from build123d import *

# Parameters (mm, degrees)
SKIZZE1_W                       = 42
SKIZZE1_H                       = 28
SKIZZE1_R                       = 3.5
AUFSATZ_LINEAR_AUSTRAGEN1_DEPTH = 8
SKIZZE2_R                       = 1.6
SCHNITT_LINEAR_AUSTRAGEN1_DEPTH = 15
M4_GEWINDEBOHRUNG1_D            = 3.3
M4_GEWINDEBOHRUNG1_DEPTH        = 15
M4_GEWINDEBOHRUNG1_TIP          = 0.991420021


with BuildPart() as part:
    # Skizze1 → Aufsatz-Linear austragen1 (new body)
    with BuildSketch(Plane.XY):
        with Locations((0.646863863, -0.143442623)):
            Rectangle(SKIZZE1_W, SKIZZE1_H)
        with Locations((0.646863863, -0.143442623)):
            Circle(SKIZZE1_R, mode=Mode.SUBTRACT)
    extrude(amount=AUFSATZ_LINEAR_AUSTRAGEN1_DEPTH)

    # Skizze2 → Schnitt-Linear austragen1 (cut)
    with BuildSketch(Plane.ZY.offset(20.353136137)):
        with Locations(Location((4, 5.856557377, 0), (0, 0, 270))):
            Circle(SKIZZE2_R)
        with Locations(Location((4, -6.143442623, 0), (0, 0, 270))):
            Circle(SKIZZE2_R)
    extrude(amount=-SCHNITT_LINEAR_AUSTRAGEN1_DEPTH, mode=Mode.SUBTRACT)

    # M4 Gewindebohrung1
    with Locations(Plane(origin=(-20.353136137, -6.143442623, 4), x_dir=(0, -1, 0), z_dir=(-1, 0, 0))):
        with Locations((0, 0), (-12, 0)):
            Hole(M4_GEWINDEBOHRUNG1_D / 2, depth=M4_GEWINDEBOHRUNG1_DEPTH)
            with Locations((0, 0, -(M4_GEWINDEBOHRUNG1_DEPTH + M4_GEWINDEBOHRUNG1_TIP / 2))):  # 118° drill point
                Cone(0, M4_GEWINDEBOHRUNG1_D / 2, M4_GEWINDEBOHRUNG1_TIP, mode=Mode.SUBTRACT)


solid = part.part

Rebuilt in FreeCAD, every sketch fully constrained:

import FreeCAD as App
import Part
import Sketcher


def add_polygon(sketch, points):
    """Adds a closed chain of lines whose ends are joined by coincident constraints."""
    first, n = sketch.GeometryCount, len(points)
    for a, b in zip(points, points[1:] + points[:1]):
        sketch.addGeometry(Part.LineSegment(App.Vector(*a, 0), App.Vector(*b, 0)), False)
    for i in range(n):
        sketch.addConstraint(Sketcher.Constraint("Coincident", first + i, 2, first + (i + 1) % n, 1))

doc = App.newDocument("Part")
body = doc.addObject("PartDesign::Body", "Body")

# Sketch on XY plane
sketch1 = body.newObject("Sketcher::SketchObject", "Sketch")
sketch1.AttachmentSupport = (doc.getObject("XY_Plane"), [""])
sketch1.MapMode = "FlatFace"
add_polygon(sketch1, [(-20.4, 13.9), (-20.4, -14.1), (21.6, -14.1), (21.6, 13.9)])  # lines 0-3
sketch1.addGeometry(Part.Circle(App.Vector(0.6, -0.1, 0), App.Vector(0, 0, 1), 3.5), False)  # 4
sketch1.addConstraint([
    Sketcher.Constraint("Vertical", 0),
    Sketcher.Constraint("Horizontal", 1),
    Sketcher.Constraint("Vertical", 2),
    Sketcher.Constraint("Horizontal", 3),
    Sketcher.Constraint("Diameter", 4, 7.0),
    Sketcher.Constraint("DistanceX", 1, 1, 1, 2, 42.0),
    Sketcher.Constraint("DistanceY", 0, 2, 0, 1, 28.0),
    Sketcher.Constraint("DistanceX", 0, 2, 4, 3, 21.0),
    Sketcher.Constraint("DistanceY", 0, 2, 4, 3, 14.0),
    Sketcher.Constraint("DistanceX", -1, 1, 4, 3, 0.646864),
    Sketcher.Constraint("DistanceY", 4, 3, -1, 1, 0.143443),
])
pad1 = body.newObject("PartDesign::Pad", "Pad")
pad1.Profile = sketch1
pad1.Length = 8

# Sketch on YZ plane
sketch2 = body.newObject("Sketcher::SketchObject", "Sketch001")
sketch2.AttachmentSupport = (doc.getObject("YZ_Plane"), [""])
sketch2.MapMode = "FlatFace"
sketch2.AttachmentOffset = App.Placement(App.Vector(0, 0, -20.353136), App.Rotation())
sketch2.addGeometry([
    Part.Circle(App.Vector(5.9, 4, 0), App.Vector(0, 0, 1), 1.6),
    Part.Circle(App.Vector(-6.1, 4, 0), App.Vector(0, 0, 1), 1.6),
], False)
sketch2.addConstraint([
    Sketcher.Constraint("Equal", 0, 1),
    Sketcher.Constraint("Horizontal", 0, 3, 1, 3),
    Sketcher.Constraint("Diameter", 0, 3.2),
    Sketcher.Constraint("DistanceY", -1, 1, 0, 3, 4.0),
    Sketcher.Constraint("DistanceX", 1, 3, 0, 3, 12.0),
    Sketcher.Constraint("DistanceX", -1, 1, 0, 3, 5.856557),
])
pocket1 = body.newObject("PartDesign::Pocket", "Pocket")
pocket1.Profile = sketch2
pocket1.Length = 15
pocket1.Reversed = True

# Sketch on YZ plane
sketch3 = body.newObject("Sketcher::SketchObject", "Sketch002")
sketch3.AttachmentSupport = (doc.getObject("YZ_Plane"), [""])
sketch3.MapMode = "FlatFace"
sketch3.AttachmentOffset = App.Placement(App.Vector(0, 0, -20.353136), App.Rotation())
sketch3.addGeometry([
    Part.Circle(App.Vector(-6.1, 4, 0), App.Vector(0, 0, 1), 1.6),
    Part.Circle(App.Vector(5.9, 4, 0), App.Vector(0, 0, 1), 1.6),
], False)
sketch3.addConstraint([
    Sketcher.Constraint("Equal", 0, 1),
    Sketcher.Constraint("Horizontal", 0, 3, 1, 3),
    Sketcher.Constraint("Diameter", 0, 3.3),
    Sketcher.Constraint("DistanceY", -1, 1, 0, 3, 4.0),
    Sketcher.Constraint("DistanceX", 0, 3, 1, 3, 12.0),
    Sketcher.Constraint("DistanceX", 0, 3, -1, 1, 6.143443),
])
doc.recompute()
hole = body.newObject("PartDesign::Hole", "Hole")
hole.Profile = sketch3
hole.ThreadType = "None"
hole.Diameter = 3.3
hole.DepthType = "Dimension"
hole.Depth = 15
hole.DrillPoint = "Angled"
hole.DrillPointAngle = 118
hole.Reversed = True

doc.recompute()
